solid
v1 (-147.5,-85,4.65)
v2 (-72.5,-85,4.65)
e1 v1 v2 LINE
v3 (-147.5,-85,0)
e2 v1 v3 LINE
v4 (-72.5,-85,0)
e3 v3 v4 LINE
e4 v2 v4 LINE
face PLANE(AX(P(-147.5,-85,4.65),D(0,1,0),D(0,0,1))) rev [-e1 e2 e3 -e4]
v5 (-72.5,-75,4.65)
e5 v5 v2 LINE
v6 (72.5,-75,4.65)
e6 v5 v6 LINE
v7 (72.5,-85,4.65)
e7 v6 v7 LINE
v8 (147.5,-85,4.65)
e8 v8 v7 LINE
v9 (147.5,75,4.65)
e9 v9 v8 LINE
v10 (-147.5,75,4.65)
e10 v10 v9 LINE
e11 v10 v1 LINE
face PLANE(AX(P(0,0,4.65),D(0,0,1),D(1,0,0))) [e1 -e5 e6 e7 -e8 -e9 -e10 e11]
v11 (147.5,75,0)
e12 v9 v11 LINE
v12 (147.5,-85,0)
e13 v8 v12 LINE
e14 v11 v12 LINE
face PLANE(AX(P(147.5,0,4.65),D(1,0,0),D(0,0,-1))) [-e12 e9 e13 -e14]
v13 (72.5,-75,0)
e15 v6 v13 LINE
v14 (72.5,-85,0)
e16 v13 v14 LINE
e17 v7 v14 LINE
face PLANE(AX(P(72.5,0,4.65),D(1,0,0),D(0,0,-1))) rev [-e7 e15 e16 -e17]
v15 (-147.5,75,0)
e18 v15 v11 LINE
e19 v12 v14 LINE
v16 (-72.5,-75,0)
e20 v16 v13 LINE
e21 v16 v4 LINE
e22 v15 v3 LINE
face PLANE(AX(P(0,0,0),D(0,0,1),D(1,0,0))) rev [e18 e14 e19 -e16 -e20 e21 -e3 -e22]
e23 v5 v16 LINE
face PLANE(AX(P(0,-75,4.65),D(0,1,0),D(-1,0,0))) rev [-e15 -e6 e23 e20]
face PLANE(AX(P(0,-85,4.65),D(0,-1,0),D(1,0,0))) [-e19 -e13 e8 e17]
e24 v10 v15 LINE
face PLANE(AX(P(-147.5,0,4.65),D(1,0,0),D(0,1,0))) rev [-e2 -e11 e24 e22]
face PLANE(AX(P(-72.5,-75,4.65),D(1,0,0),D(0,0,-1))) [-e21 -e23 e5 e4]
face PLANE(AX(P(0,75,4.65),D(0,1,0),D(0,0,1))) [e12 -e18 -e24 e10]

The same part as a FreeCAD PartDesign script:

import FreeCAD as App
import Part
import Sketcher

V = App.Vector
Q = App.Units.Quantity

doc = App.newDocument("Part")
body = doc.addObject("PartDesign::Body", "Body")

# Sketch on XY plane
sketch1 = body.newObject("Sketcher::SketchObject", "Sketch")
sketch1.AttachmentSupport = (doc.getObject("XY_Plane"), [""])
sketch1.MapMode = "FlatFace"
sketch1.addGeometry([
    Part.LineSegment(V(-148, 75, 0), V(-148, -85, 0)),  # 0
    Part.LineSegment(V(-148, -85, 0), V(-72, -85, 0)),  # 1
    Part.LineSegment(V(-72, -85, 0), V(-72, -75, 0)),  # 2
    Part.LineSegment(V(-72, -75, 0), V(72, -75, 0)),  # 3
    Part.LineSegment(V(72, -75, 0), V(72, -85, 0)),  # 4
    Part.LineSegment(V(72, -85, 0), V(148, -85, 0)),  # 5
    Part.LineSegment(V(148, -85, 0), V(148, 75, 0)),  # 6
    Part.LineSegment(V(148, 75, 0), V(-148, 75, 0)),  # 7
], False)
sketch1.addConstraint([
    Sketcher.Constraint("Coincident", 0, 2, 1, 1),
    Sketcher.Constraint("Coincident", 1, 2, 2, 1),
    Sketcher.Constraint("Coincident", 2, 2, 3, 1),
    Sketcher.Constraint("Coincident", 3, 2, 4, 1),
    Sketcher.Constraint("Coincident", 4, 2, 5, 1),
    Sketcher.Constraint("Coincident", 5, 2, 6, 1),
    Sketcher.Constraint("Coincident", 6, 2, 7, 1),
    Sketcher.Constraint("Coincident", 7, 2, 0, 1),
    Sketcher.Constraint("Vertical", 0),
    Sketcher.Constraint("Horizontal", 1),
    Sketcher.Constraint("Vertical", 2),
    Sketcher.Constraint("Horizontal", 3),
    Sketcher.Constraint("Vertical", 4),
    Sketcher.Constraint("Horizontal", 5),
    Sketcher.Constraint("Vertical", 6),
    Sketcher.Constraint("Horizontal", 7),
    Sketcher.Constraint("Symmetric", 1, 2, 4, 2, -2),
    Sketcher.Constraint("Equal", 1, 5),
    Sketcher.Constraint("DistanceX", 1, 1, 1, 2, Q("75 mm")),
    Sketcher.Constraint("DistanceX", 3, 1, 3, 2, Q("145 mm")),
    Sketcher.Constraint("DistanceY", 0, 2, 0, 1, Q("160 mm")),
    Sketcher.Constraint("DistanceY", 2, 1, 2, 2, Q("10 mm")),
    Sketcher.Constraint("DistanceY", 0, 2, -1, 1, Q("85 mm")),
])
pad1 = body.newObject("PartDesign::Pad", "Pad")
pad1.Profile = sketch1
pad1.Length = 4.65

doc.recompute()
